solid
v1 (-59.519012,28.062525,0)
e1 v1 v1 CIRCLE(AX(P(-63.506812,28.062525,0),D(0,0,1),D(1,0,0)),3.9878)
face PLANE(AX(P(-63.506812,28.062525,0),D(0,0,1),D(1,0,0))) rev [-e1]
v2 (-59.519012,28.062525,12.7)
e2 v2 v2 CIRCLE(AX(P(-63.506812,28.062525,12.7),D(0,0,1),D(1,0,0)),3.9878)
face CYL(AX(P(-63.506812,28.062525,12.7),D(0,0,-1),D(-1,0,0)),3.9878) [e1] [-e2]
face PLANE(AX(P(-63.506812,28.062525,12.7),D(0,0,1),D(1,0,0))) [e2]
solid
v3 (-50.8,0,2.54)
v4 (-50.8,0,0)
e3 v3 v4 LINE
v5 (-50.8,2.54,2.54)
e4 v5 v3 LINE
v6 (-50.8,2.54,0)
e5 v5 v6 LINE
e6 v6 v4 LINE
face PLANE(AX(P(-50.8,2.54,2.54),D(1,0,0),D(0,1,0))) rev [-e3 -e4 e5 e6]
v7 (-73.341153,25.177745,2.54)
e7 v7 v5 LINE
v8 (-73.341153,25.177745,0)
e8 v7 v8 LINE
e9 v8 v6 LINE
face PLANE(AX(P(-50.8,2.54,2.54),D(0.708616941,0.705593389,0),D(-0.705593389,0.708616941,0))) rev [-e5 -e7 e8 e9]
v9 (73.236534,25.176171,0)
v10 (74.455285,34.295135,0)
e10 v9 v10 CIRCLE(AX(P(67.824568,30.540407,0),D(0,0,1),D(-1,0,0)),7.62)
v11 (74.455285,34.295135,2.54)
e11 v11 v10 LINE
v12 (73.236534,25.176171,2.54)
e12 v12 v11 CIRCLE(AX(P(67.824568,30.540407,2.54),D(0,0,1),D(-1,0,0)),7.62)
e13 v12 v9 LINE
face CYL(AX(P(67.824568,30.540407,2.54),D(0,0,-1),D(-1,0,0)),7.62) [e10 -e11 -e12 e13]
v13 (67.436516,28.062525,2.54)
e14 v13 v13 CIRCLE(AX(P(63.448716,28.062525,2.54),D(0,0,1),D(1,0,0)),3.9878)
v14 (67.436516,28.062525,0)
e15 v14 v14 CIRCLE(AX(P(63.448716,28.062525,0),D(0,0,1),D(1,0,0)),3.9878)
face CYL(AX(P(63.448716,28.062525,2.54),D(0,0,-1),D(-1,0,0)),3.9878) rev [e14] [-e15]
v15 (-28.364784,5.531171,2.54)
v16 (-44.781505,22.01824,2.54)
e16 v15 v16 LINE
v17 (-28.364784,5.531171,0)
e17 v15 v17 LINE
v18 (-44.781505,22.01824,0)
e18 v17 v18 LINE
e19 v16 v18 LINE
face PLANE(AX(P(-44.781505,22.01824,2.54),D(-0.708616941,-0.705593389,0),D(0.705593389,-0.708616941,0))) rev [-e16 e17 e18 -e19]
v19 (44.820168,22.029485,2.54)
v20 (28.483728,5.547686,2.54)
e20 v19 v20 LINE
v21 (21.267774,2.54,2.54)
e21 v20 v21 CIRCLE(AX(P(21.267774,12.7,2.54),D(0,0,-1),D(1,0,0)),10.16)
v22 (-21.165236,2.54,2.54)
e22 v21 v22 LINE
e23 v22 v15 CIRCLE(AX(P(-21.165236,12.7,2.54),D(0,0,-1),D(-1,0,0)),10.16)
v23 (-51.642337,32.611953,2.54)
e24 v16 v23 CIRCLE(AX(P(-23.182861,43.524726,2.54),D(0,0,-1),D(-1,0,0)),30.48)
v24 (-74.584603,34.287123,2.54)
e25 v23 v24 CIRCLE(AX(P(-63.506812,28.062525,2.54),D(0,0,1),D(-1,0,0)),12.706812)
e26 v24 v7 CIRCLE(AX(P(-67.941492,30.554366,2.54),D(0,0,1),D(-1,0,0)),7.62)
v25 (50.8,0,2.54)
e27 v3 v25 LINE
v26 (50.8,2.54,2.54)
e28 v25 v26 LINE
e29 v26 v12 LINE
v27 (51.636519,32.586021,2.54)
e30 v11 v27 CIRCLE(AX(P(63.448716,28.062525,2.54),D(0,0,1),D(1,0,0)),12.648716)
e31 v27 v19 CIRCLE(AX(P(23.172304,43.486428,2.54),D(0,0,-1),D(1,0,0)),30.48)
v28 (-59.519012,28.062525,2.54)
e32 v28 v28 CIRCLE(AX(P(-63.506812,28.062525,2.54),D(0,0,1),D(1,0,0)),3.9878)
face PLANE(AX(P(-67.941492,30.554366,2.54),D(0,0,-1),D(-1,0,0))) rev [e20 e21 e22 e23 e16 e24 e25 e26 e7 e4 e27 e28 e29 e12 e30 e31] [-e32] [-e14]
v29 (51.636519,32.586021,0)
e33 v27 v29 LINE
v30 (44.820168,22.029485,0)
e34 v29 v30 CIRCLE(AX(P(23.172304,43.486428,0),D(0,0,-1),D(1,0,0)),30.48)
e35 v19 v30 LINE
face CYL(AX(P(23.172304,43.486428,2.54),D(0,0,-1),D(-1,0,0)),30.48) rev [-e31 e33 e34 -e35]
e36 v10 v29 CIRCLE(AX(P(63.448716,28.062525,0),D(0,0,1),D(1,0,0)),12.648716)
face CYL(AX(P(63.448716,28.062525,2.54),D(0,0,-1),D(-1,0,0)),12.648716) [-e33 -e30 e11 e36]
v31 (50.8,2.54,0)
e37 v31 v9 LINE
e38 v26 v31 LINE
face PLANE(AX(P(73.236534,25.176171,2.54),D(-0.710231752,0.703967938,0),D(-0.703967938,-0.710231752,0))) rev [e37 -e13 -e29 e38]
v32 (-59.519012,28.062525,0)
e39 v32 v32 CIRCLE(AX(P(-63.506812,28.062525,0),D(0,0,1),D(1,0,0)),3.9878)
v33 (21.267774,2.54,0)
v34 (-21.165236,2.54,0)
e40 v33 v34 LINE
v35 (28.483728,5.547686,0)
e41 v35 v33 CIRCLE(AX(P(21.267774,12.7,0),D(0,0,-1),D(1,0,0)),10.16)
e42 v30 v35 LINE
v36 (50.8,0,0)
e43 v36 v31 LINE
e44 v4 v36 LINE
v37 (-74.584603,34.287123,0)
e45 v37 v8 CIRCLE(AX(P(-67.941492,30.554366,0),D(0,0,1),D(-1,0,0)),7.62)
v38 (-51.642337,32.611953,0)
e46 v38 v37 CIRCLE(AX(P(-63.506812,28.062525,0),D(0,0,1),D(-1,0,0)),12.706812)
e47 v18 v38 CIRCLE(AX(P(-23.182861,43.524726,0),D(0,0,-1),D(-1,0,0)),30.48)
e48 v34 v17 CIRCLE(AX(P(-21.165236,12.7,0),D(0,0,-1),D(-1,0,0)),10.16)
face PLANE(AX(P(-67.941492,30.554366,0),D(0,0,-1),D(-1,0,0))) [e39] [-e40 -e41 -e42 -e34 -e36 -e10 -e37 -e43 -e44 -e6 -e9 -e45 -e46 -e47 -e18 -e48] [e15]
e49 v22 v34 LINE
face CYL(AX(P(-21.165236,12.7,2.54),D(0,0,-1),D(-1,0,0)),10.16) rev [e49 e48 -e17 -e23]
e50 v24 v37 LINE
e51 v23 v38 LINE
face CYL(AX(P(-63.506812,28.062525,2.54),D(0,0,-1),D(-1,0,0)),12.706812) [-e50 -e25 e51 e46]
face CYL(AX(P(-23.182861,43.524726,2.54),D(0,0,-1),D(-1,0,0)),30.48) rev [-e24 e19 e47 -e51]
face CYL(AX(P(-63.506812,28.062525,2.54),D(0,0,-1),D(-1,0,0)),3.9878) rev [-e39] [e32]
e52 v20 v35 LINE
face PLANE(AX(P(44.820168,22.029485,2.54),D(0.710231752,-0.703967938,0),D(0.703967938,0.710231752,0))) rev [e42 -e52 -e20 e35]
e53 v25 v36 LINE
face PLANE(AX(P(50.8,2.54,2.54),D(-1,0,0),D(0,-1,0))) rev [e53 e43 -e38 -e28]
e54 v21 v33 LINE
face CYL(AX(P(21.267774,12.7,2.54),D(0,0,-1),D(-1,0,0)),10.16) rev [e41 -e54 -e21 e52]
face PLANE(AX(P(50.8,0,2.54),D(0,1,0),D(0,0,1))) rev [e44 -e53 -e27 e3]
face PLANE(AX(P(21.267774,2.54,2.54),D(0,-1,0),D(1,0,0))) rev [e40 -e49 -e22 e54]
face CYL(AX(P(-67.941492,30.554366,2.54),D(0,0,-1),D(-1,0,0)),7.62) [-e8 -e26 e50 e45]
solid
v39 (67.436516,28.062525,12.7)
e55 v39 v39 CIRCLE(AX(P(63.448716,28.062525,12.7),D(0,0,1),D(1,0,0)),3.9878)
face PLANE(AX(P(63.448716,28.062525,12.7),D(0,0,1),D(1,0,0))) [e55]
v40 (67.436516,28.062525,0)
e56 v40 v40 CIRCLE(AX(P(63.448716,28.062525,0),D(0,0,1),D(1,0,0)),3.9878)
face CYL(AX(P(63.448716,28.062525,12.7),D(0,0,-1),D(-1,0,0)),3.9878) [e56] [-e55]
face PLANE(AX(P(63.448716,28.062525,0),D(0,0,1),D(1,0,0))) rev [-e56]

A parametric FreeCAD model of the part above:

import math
import FreeCAD as App
import Part
import Sketcher

V = App.Vector
Q = App.Units.Quantity

doc = App.newDocument("Part")
body = doc.addObject("PartDesign::Body", "Body")

# Sketch on XY plane
sketch1 = doc.addObject("Sketcher::SketchObject", "Sketch")
body.addObject(sketch1)
sketch1.AttachmentSupport = (doc.XY_Plane, [""])
sketch1.MapMode = "FlatFace"
sketch1.addGeometry(Part.LineSegment(V(-50.8, 0, 0), V(50.8, 0, 0)), False)
sketch1.addGeometry(Part.LineSegment(V(50.8, 0, 0), V(50.8, 2.5, 0)), False)
sketch1.addGeometry(Part.LineSegment(V(50.8, 2.5, 0), V(73.2, 25.2, 0)), False)
sketch1.addGeometry(Part.ArcOfCircle(Part.Circle(V(67.8, 30.5, 0), V(0, 0, 1), 7.6), math.radians(-45), math.radians(30)), False)
sketch1.addGeometry(Part.ArcOfCircle(Part.Circle(V(63.4, 28.1, 0), V(0, 0, 1), 12.6), math.radians(30), math.radians(159)), False)
sketch1.addGeometry(Part.ArcOfCircle(Part.Circle(V(23.2, 43.5, 0), V(0, 0, 1), 30.5), math.radians(-45), math.radians(-21)), False)
sketch1.addGeometry(Part.LineSegment(V(44.8, 22, 0), V(28.5, 5.5, 0)), False)
sketch1.addGeometry(Part.ArcOfCircle(Part.Circle(V(21.3, 12.7, 0), V(0, 0, 1), 10.2), math.radians(-90), math.radians(-45)), False)
sketch1.addGeometry(Part.LineSegment(V(21.3, 2.5, 0), V(-21.2, 2.5, 0)), False)
sketch1.addGeometry(Part.ArcOfCircle(Part.Circle(V(-21.2, 12.7, 0), V(0, 0, 1), 10.2), math.radians(-135), math.radians(-90)), False)
sketch1.addGeometry(Part.LineSegment(V(-28.4, 5.5, 0), V(-44.8, 22, 0)), False)
sketch1.addGeometry(Part.ArcOfCircle(Part.Circle(V(-23.2, 43.5, 0), V(0, 0, 1), 30.5), math.radians(-159), math.radians(-135)), False)
sketch1.addGeometry(Part.ArcOfCircle(Part.Circle(V(-63.5, 28.1, 0), V(0, 0, 1), 12.7), math.radians(21), math.radians(151)), False)
sketch1.addGeometry(Part.ArcOfCircle(Part.Circle(V(-67.9, 30.6, 0), V(0, 0, 1), 7.6), math.radians(151), math.radians(225)), False)
sketch1.addGeometry(Part.LineSegment(V(-73.3, 25.2, 0), V(-50.8, 2.5, 0)), False)
sketch1.addGeometry(Part.LineSegment(V(-50.8, 2.5, 0), V(-50.8, 0, 0)), False)
sketch1.addGeometry(Part.Circle(V(63.4, 28.1, 0), V(0, 0, 1), 4), False)
sketch1.addGeometry(Part.Circle(V(-63.5, 28.1, 0), V(0, 0, 1), 4), False)
sketch1.addConstraint(Sketcher.Constraint("Coincident", 0, 2, 1, 1))
sketch1.addConstraint(Sketcher.Constraint("Coincident", 1, 2, 2, 1))
sketch1.addConstraint(Sketcher.Constraint("Tangent", 2, 2, 3, 1))
sketch1.addConstraint(Sketcher.Constraint("Tangent", 3, 2, 4, 1))
sketch1.addConstraint(Sketcher.Constraint("Tangent", 4, 2, 5, 2))
sketch1.addConstraint(Sketcher.Constraint("Tangent", 5, 1, 6, 1))
sketch1.addConstraint(Sketcher.Constraint("Tangent", 6, 2, 7, 2))
sketch1.addConstraint(Sketcher.Constraint("Tangent", 7, 1, 8, 1))
sketch1.addConstraint(Sketcher.Constraint("Tangent", 8, 2, 9, 2))
sketch1.addConstraint(Sketcher.Constraint("Tangent", 9, 1, 10, 1))
sketch1.addConstraint(Sketcher.Constraint("Tangent", 10, 2, 11, 2))
sketch1.addConstraint(Sketcher.Constraint("Tangent", 11, 1, 12, 1))
sketch1.addConstraint(Sketcher.Constraint("Tangent", 12, 2, 13, 1))
sketch1.addConstraint(Sketcher.Constraint("Tangent", 13, 2, 14, 1))
sketch1.addConstraint(Sketcher.Constraint("Coincident", 14, 2, 15, 1))
sketch1.addConstraint(Sketcher.Constraint("Coincident", 15, 2, 0, 1))
sketch1.addConstraint(Sketcher.Constraint("Horizontal", 0))
sketch1.addConstraint(Sketcher.Constraint("Vertical", 1))
sketch1.addConstraint(Sketcher.Constraint("Horizontal", 8))
sketch1.addConstraint(Sketcher.Constraint("Vertical", 15))
sketch1.addConstraint(Sketcher.Constraint("Coincident", 16, 3, 4, 3))
sketch1.addConstraint(Sketcher.Constraint("Coincident", 17, 3, 12, 3))
sketch1.addConstraint(Sketcher.Constraint("Equal", 7, 9))
sketch1.addConstraint(Sketcher.Constraint("Equal", 5, 11))
sketch1.addConstraint(Sketcher.Constraint("Equal", 3, 13))
sketch1.addConstraint(Sketcher.Constraint("Equal", 16, 17))
sketch1.addConstraint(Sketcher.Constraint("Symmetric", 0, 2, 15, 2, -1, 1))
sketch1.addConstraint(Sketcher.Constraint("Parallel", 2, 6))
sketch1.addConstraint(Sketcher.Constraint("Parallel", 10, 14))
sketch1.addConstraint(Sketcher.Constraint("Horizontal", 4, 3, 12, 3))
sketch1.addConstraint(Sketcher.Constraint("Horizontal", 1, 2, 7, 1))
sketch1.addConstraint(Sketcher.Constraint("Horizontal", 8, 2, 14, 2))
sketch1.addConstraint(Sketcher.Constraint("Radius", 3, Q("0.3 in")))
sketch1.addConstraint(Sketcher.Constraint("Radius", 5, Q("1.2 in")))
sketch1.addConstraint(Sketcher.Constraint("Radius", 7, Q("0.4 in")))
sketch1.addConstraint(Sketcher.Constraint("DistanceX", 0, 1, 0, 2, Q("4 in")))
sketch1.addConstraint(Sketcher.Constraint("Diameter", 16, Q("0.314 in")))
sketch1.addConstraint(Sketcher.Constraint("DistanceY", 1, 1, 1, 2, Q("0.1 in")))
sketch1.addConstraint(Sketcher.Constraint("Radius", 4, Q("12.648716 mm")))
sketch1.addConstraint(Sketcher.Constraint("Radius", 12, Q("12.706812 mm")))
sketch1.addConstraint(Sketcher.Constraint("DistanceX", 8, 2, 8, 1, Q("42.433009 mm")))
sketch1.addConstraint(Sketcher.Constraint("DistanceY", 5, 3, 11, 3, Q("0.038299 mm")))
sketch1.addConstraint(Sketcher.Constraint("DistanceY", 4, 3, 11, 3, Q("15.462201 mm")))
sketch1.addConstraint(Sketcher.Constraint("DistanceY", 6, 2, 5, 1, Q("16.481799 mm")))
sketch1.addConstraint(Sketcher.Constraint("DistanceX", 12, 2, 10, 2, Q("29.803098 mm")))
sketch1.addConstraint(Sketcher.Constraint("Distance", 2, Q("31.871528 mm")))
sketch1.addConstraint(Sketcher.Constraint("DistanceX", 11, 3, -1, 1, Q("23.182861 mm")))
pad1 = doc.addObject("PartDesign::Pad", "Pad")
body.addObject(pad1)
pad1.Profile = sketch1
pad1.Length = Q("0.1 in")
body2 = doc.addObject("PartDesign::Body", "Body001")

# Sketch on XY plane
sketch2 = doc.addObject("Sketcher::SketchObject", "Sketch001")
body2.addObject(sketch2)
sketch2.AttachmentSupport = (doc.getObject("XY_Plane001"), [""])
sketch2.MapMode = "FlatFace"
sketch2.addGeometry(Part.Circle(V(-63.5, 28.1, 0), V(0, 0, 1), 4), False)
sketch2.addConstraint(Sketcher.Constraint("Diameter", 0, Q("0.314 in")))
sketch2.addConstraint(Sketcher.Constraint("DistanceX", 0, 3, -1, 1, Q("63.506812 mm")))
sketch2.addConstraint(Sketcher.Constraint("DistanceY", -1, 1, 0, 3, Q("28.062525 mm")))
pad2 = doc.addObject("PartDesign::Pad", "Pad001")
body2.addObject(pad2)
pad2.Profile = sketch2
pad2.Length = Q("0.5 in")
body3 = doc.addObject("PartDesign::Body", "Body002")

# Sketch on XY plane
sketch3 = doc.addObject("Sketcher::SketchObject", "Sketch002")
body3.addObject(sketch3)
sketch3.AttachmentSupport = (doc.getObject("XY_Plane002"), [""])
sketch3.MapMode = "FlatFace"
sketch3.addGeometry(Part.Circle(V(63.4, 28.1, 0), V(0, 0, 1), 4), False)
sketch3.addConstraint(Sketcher.Constraint("Diameter", 0, Q("0.314 in")))
sketch3.addConstraint(Sketcher.Constraint("DistanceX", -1, 1, 0, 3, Q("63.448716 mm")))
sketch3.addConstraint(Sketcher.Constraint("DistanceY", -1, 1, 0, 3, Q("28.062525 mm")))
pad3 = doc.addObject("PartDesign::Pad", "Pad002")
body3.addObject(pad3)
pad3.Profile = sketch3
pad3.Length = Q("0.5 in")

doc.recompute()
